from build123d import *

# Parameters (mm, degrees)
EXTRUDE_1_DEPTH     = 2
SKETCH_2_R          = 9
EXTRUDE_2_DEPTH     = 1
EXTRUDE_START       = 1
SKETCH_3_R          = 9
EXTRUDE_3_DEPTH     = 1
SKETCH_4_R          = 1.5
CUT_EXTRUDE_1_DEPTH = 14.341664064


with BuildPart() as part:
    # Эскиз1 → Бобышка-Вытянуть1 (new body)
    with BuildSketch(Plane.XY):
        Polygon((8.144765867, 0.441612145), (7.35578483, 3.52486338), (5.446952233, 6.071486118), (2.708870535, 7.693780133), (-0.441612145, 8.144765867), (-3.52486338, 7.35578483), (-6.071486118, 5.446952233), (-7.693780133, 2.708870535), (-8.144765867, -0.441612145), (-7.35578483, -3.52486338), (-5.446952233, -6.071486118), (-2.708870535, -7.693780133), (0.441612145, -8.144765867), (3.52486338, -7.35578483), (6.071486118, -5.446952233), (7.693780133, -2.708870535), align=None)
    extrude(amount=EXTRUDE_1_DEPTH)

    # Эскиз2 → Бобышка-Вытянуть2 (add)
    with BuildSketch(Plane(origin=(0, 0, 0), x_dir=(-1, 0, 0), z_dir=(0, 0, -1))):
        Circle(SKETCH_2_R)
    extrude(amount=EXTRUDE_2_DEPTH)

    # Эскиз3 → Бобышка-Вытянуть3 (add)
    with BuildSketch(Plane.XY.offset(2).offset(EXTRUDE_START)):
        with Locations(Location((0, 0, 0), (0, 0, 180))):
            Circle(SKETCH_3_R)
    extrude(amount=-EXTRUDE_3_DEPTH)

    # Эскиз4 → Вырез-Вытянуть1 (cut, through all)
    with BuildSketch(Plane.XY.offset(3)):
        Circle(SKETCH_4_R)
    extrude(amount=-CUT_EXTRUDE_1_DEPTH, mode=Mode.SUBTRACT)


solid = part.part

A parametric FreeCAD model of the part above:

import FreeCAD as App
import Part
import Sketcher
from FreeCAD import Vector

doc = App.newDocument("Part")
body = doc.addObject("PartDesign::Body", "Body")

# Sketch on XY plane
sketch1 = body.newObject("Sketcher::SketchObject", "Sketch")
sketch1.AttachmentSupport = (doc.getObject("XY_Plane"), [""])
sketch1.MapMode = "FlatFace"
sketch1.addGeometry([
    Part.LineSegment(Vector(8.144766, 0.441612, 0), Vector(7.355785, 3.524863, 0)),  # 0
    Part.LineSegment(Vector(7.355785, 3.524863, 0), Vector(5.446952, 6.071486, 0)),  # 1
    Part.LineSegment(Vector(5.446952, 6.071486, 0), Vector(2.708871, 7.69378, 0)),  # 2
    Part.LineSegment(Vector(2.708871, 7.69378, 0), Vector(-0.441612, 8.144766, 0)),  # 3
    Part.LineSegment(Vector(-0.441612, 8.144766, 0), Vector(-3.524863, 7.355785, 0)),  # 4
    Part.LineSegment(Vector(-3.524863, 7.355785, 0), Vector(-6.071486, 5.446952, 0)),  # 5
    Part.LineSegment(Vector(-6.071486, 5.446952, 0), Vector(-7.69378, 2.708871, 0)),  # 6
    Part.LineSegment(Vector(-7.69378, 2.708871, 0), Vector(-8.144766, -0.441612, 0)),  # 7
    Part.LineSegment(Vector(-8.144766, -0.441612, 0), Vector(-7.355785, -3.524863, 0)),  # 8
    Part.LineSegment(Vector(-7.355785, -3.524863, 0), Vector(-5.446952, -6.071486, 0)),  # 9
    Part.LineSegment(Vector(-5.446952, -6.071486, 0), Vector(-2.708871, -7.69378, 0)),  # 10
    Part.LineSegment(Vector(-2.708871, -7.69378, 0), Vector(0.441612, -8.144766, 0)),  # 11
    Part.LineSegment(Vector(0.441612, -8.144766, 0), Vector(3.524863, -7.355785, 0)),  # 12
    Part.LineSegment(Vector(3.524863, -7.355785, 0), Vector(6.071486, -5.446952, 0)),  # 13
    Part.LineSegment(Vector(6.071486, -5.446952, 0), Vector(7.69378, -2.708871, 0)),  # 14
    Part.LineSegment(Vector(7.69378, -2.708871, 0), Vector(8.144766, 0.441612, 0)),  # 15
], False)
sketch1.addConstraint([
    Sketcher.Constraint("Coincident", 0, 2, 1, 1),
    Sketcher.Constraint("Coincident", 1, 2, 2, 1),
    Sketcher.Constraint("Coincident", 2, 2, 3, 1),
    Sketcher.Constraint("Coincident", 3, 2, 4, 1),
    Sketcher.Constraint("Coincident", 4, 2, 5, 1),
    Sketcher.Constraint("Coincident", 5, 2, 6, 1),
    Sketcher.Constraint("Coincident", 6, 2, 7, 1),
    Sketcher.Constraint("Coincident", 7, 2, 8, 1),
    Sketcher.Constraint("Coincident", 8, 2, 9, 1),
    Sketcher.Constraint("Coincident", 9, 2, 10, 1),
    Sketcher.Constraint("Coincident", 10, 2, 11, 1),
    Sketcher.Constraint("Coincident", 11, 2, 12, 1),
    Sketcher.Constraint("Coincident", 12, 2, 13, 1),
    Sketcher.Constraint("Coincident", 13, 2, 14, 1),
    Sketcher.Constraint("Coincident", 14, 2, 15, 1),
    Sketcher.Constraint("Coincident", 15, 2, 0, 1),
    Sketcher.Constraint("Symmetric", 0, 2, 8, 2, -1, 1),
    Sketcher.Constraint("Symmetric", 1, 2, 9, 2, -1, 1),
    Sketcher.Constraint("Symmetric", 2, 2, 10, 2, -1, 1),
    Sketcher.Constraint("Symmetric", 3, 2, 11, 2, -1, 1),
    Sketcher.Constraint("Symmetric", 4, 2, 12, 2, -1, 1),
    Sketcher.Constraint("Symmetric", 5, 2, 13, 2, -1, 1),
    Sketcher.Constraint("Symmetric", 6, 2, 14, 2, -1, 1),
    Sketcher.Constraint("Symmetric", 7, 2, 15, 2, -1, 1),
    Sketcher.Constraint("Perpendicular", 0, 4),
    Sketcher.Constraint("Perpendicular", 1, 5),
    Sketcher.Constraint("Perpendicular", 2, 6),
    Sketcher.Constraint("Perpendicular", 3, 7),
    Sketcher.Constraint("Equal", 0, 1),
    Sketcher.Constraint("Equal", 1, 2),
    Sketcher.Constraint("Equal", 2, 3),
    Sketcher.Constraint("Equal", 3, 4),
    Sketcher.Constraint("Equal", 4, 5),
    Sketcher.Constraint("Equal", 5, 6),
    Sketcher.Constraint("Equal", 6, 7),
    Sketcher.Constraint("DistanceY", 1, 2, 4, 2, 1.284299),
    Sketcher.Constraint("DistanceX", -1, 1, 2, 2, 2.708871),
    Sketcher.Constraint("DistanceY", -1, 1, 2, 2, 7.69378),
    Sketcher.Constraint("DistanceX", 2, 2, 1, 2, 2.738082),
    Sketcher.Constraint("DistanceY", 1, 2, 3, 2, 2.07328),
])
pad1 = body.newObject("PartDesign::Pad", "Pad")
pad1.Profile = sketch1
pad1.Length = 2

# Sketch on XY plane
sketch2 = body.newObject("Sketcher::SketchObject", "Sketch001")
sketch2.AttachmentSupport = (doc.getObject("XY_Plane"), [""])
sketch2.MapMode = "FlatFace"
sketch2.addGeometry(Part.Circle(Vector(0, 0, 0), Vector(0, 0, 1), 9), False)
sketch2.addConstraint([
    Sketcher.Constraint("Coincident", 0, 3, -1, 1),
    Sketcher.Constraint("Diameter", 0, 18.0),
])
pad2 = body.newObject("PartDesign::Pad", "Pad001")
pad2.Profile = sketch2
pad2.Length = 1
pad2.Reversed = True

# Sketch on XY plane
sketch3 = body.newObject("Sketcher::SketchObject", "Sketch002")
sketch3.AttachmentSupport = (doc.getObject("XY_Plane"), [""])
sketch3.MapMode = "FlatFace"
sketch3.AttachmentOffset = App.Placement(Vector(0, 0, 3), App.Rotation())
sketch3.addGeometry(Part.Circle(Vector(0, 0, 0), Vector(0, 0, 1), 9), False)
sketch3.addConstraint([
    Sketcher.Constraint("Coincident", 0, 3, -1, 1),
    Sketcher.Constraint("Diameter", 0, 18.0),
])
pad3 = body.newObject("PartDesign::Pad", "Pad002")
pad3.Profile = sketch3
pad3.Length = 1
pad3.Reversed = True

# Sketch on XY plane
sketch4 = body.newObject("Sketcher::SketchObject", "Sketch003")
sketch4.AttachmentSupport = (doc.getObject("XY_Plane"), [""])
sketch4.MapMode = "FlatFace"
sketch4.AttachmentOffset = App.Placement(Vector(0, 0, 3), App.Rotation())
sketch4.addGeometry(Part.Circle(Vector(0, 0, 0), Vector(0, 0, 1), 1.5), False)
sketch4.addConstraint([
    Sketcher.Constraint("Coincident", 0, 3, -1, 1),
    Sketcher.Constraint("Diameter", 0, 3.0),
])
pocket1 = body.newObject("PartDesign::Pocket", "Pocket")
pocket1.Profile = sketch4
pocket1.Type = "ThroughAll"

doc.recompute()
